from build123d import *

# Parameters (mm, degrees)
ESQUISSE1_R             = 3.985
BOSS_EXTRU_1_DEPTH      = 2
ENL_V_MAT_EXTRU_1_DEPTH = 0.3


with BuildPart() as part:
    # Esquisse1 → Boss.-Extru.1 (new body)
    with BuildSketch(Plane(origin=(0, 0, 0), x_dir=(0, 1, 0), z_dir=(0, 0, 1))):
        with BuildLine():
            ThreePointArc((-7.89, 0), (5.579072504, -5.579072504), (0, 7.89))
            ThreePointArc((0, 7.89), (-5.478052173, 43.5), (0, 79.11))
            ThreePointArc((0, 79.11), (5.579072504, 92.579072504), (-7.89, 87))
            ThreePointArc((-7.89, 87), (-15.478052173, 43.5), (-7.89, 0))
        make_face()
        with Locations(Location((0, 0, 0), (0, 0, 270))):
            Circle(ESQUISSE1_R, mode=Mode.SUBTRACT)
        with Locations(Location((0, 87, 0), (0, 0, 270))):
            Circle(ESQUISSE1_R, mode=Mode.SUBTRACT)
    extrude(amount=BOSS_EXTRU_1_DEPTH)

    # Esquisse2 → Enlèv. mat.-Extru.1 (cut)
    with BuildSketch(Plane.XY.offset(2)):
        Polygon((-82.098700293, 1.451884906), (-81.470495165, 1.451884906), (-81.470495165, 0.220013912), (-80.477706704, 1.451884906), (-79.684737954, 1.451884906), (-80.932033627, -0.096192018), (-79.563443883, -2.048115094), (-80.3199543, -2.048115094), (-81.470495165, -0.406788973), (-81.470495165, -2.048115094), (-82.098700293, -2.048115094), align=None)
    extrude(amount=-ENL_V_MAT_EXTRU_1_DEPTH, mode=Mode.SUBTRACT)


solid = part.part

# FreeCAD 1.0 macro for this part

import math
import FreeCAD as App
import Part
import Sketcher
Q = App.Units.Quantity

doc = App.newDocument("Part")
params = doc.addObject("Spreadsheet::Sheet", "Params")
for row, (alias, value) in enumerate([
    ("sketch1_diameter", "7.97 mm"),
    ("sketch1_radius", "7.89 mm"),
    ("pad1_length", "2 mm"),
    ("sketch2_height", "3.5 mm"),
    ("pocket1_length", "0.3 mm"),
], start=1):
    params.set(f"A{row}", alias)
    params.set(f"B{row}", "=" + value)
    params.setAlias(f"B{row}", alias)

body = doc.addObject("PartDesign::Body", "Body")

sketch1 = doc.addObject("Sketcher::SketchObject", "Sketch")
body.addObject(sketch1)
sketch1.AttachmentSupport = (doc.XY_Plane, [""])
sketch1.MapMode = "FlatFace"
sketch1.addGeometry([
    Part.ArcOfCircle(Part.Circle(App.Vector(0, 0, 0), App.Vector(0, 0, 1), 7.9), math.radians(-90), math.radians(180)),
    Part.ArcOfCircle(Part.Circle(App.Vector(-43.5, 113, 0), App.Vector(0, 0, 1), 118.5), math.radians(-107), math.radians(-73)),
    Part.ArcOfCircle(Part.Circle(App.Vector(-87, 0, 0), App.Vector(0, 0, 1), 7.9), math.radians(0), math.radians(270)),
    Part.ArcOfCircle(Part.Circle(App.Vector(-43.5, 113, 0), App.Vector(0, 0, 1), 128.5), math.radians(-110), math.radians(-70)),
    Part.Circle(App.Vector(0, 0, 0), App.Vector(0, 0, 1), 4),
    Part.Circle(App.Vector(-87, 0, 0), App.Vector(0, 0, 1), 4),
], False)
sketch1.addConstraint([
    Sketcher.Constraint("Coincident", 0, 2, 1, 2),
    Sketcher.Constraint("Coincident", 1, 1, 2, 1),
    Sketcher.Constraint("Coincident", 2, 2, 3, 1),
    Sketcher.Constraint("Coincident", 3, 2, 0, 1),
    Sketcher.Constraint("Coincident", 0, 3, -1, 1),
    Sketcher.Constraint("Coincident", 4, 3, -1, 1),
    Sketcher.Constraint("Coincident", 3, 3, 1, 3),
    Sketcher.Constraint("Coincident", 5, 3, 2, 3),
    Sketcher.Constraint("Equal", 0, 2),
    Sketcher.Constraint("Equal", 4, 5),
    Sketcher.Constraint("PointOnObject", 2, 3, -1),
    Sketcher.Constraint("PointOnObject", 0, 2, -1),
    Sketcher.Constraint("PointOnObject", 1, 1, -1),
    Sketcher.Constraint("PointOnObject", 3, 2, -2),
    Sketcher.Constraint("Diameter", 4, Q("7.97 mm")),
    Sketcher.Constraint("Radius", 0, Q("7.89 mm")),
    Sketcher.Constraint("DistanceX", 2, 3, -1, 1, Q("87 mm")),
    Sketcher.Constraint("Radius", 1, Q("118.480175 mm")),
])
sketch1.setExpression("Constraints[14]", "Params.sketch1_diameter")
sketch1.setExpression("Constraints[15]", "Params.sketch1_radius")
pad1 = doc.addObject("PartDesign::Pad", "Pad")
body.addObject(pad1)
pad1.Profile = sketch1
pad1.setExpression("Length", "Params.pad1_length")

sketch2 = doc.addObject("Sketcher::SketchObject", "Sketch001")
body.addObject(sketch2)
sketch2.AttachmentSupport = (doc.XY_Plane, [""])
sketch2.MapMode = "FlatFace"
sketch2.AttachmentOffset = App.Placement(App.Vector(0, 0, 2), App.Rotation())
sketch2.addGeometry([
    Part.LineSegment(App.Vector(-81.5, 1.5, 0), App.Vector(-82.1, 1.5, 0)),
    Part.LineSegment(App.Vector(-82.1, 1.5, 0), App.Vector(-82.1, -2, 0)),
    Part.LineSegment(App.Vector(-82.1, -2, 0), App.Vector(-81.5, -2, 0)),
    Part.LineSegment(App.Vector(-81.5, -2, 0), App.Vector(-81.5, -0.4, 0)),
    Part.LineSegment(App.Vector(-81.5, -0.4, 0), App.Vector(-80.3, -2, 0)),
    Part.LineSegment(App.Vector(-80.3, -2, 0), App.Vector(-79.6, -2, 0)),
    Part.LineSegment(App.Vector(-79.6, -2, 0), App.Vector(-80.9, -0.1, 0)),
    Part.LineSegment(App.Vector(-80.9, -0.1, 0), App.Vector(-79.7, 1.5, 0)),
    Part.LineSegment(App.Vector(-79.7, 1.5, 0), App.Vector(-80.5, 1.5, 0)),
    Part.LineSegment(App.Vector(-80.5, 1.5, 0), App.Vector(-81.5, 0.2, 0)),
    Part.LineSegment(App.Vector(-81.5, 0.2, 0), App.Vector(-81.5, 1.5, 0)),
], False)
sketch2.addConstraint([
    Sketcher.Constraint("Coincident", 0, 2, 1, 1),
    Sketcher.Constraint("Coincident", 1, 2, 2, 1),
    Sketcher.Constraint("Coincident", 2, 2, 3, 1),
    Sketcher.Constraint("Coincident", 3, 2, 4, 1),
    Sketcher.Constraint("Coincident", 4, 2, 5, 1),
    Sketcher.Constraint("Coincident", 5, 2, 6, 1),
    Sketcher.Constraint("Coincident", 6, 2, 7, 1),
    Sketcher.Constraint("Coincident", 7, 2, 8, 1),
    Sketcher.Constraint("Coincident", 8, 2, 9, 1),
    Sketcher.Constraint("Coincident", 9, 2, 10, 1),
    Sketcher.Constraint("Coincident", 10, 2, 0, 1),
    Sketcher.Constraint("Horizontal", 0),
    Sketcher.Constraint("Vertical", 1),
    Sketcher.Constraint("Horizontal", 2),
    Sketcher.Constraint("Vertical", 3),
    Sketcher.Constraint("Horizontal", 5),
    Sketcher.Constraint("Horizontal", 8),
    Sketcher.Constraint("Vertical", 10),
    Sketcher.Constraint("Horizontal", 2, 2, 4, 2),
    Sketcher.Constraint("Horizontal", 0, 2, 7, 2),
    Sketcher.Constraint("Vertical", 3, 2, 9, 2),
    Sketcher.Constraint("DistanceY", 1, 2, 1, 1, Q("3.5 mm")),
    Sketcher.Constraint("DistanceX", 5, 1, 5, 2, Q("0.75651 mm")),
    Sketcher.Constraint("DistanceX", 8, 2, 8, 1, Q("0.792969 mm")),
    Sketcher.Constraint("DistanceY", 10, 1, 10, 2, Q("1.231871 mm")),
    Sketcher.Constraint("DistanceX", 0, 2, -1, 1, Q("82.0987 mm")),
    Sketcher.Constraint("Distance", 4, Q("2.004419 mm")),
    Sketcher.Constraint("Distance", 9, Q("1.58213 mm")),
    Sketcher.Constraint("DistanceX", 0, 2, 0, 1, Q("0.628205 mm")),
    Sketcher.Constraint("DistanceY", 3, 1, 3, 2, Q("1.641326 mm")),
    Sketcher.Constraint("DistanceY", 3, 2, -1, 1, Q("0.406789 mm")),
    Sketcher.Constraint("DistanceX", 3, 2, 6, 2, Q("0.538462 mm")),
    Sketcher.Constraint("Distance", 6, Q("2.383913 mm")),
])
sketch2.setExpression("Constraints[21]", "Params.sketch2_height")
pocket1 = doc.addObject("PartDesign::Pocket", "Pocket")
body.addObject(pocket1)
pocket1.Profile = sketch2
pocket1.setExpression("Length", "Params.pocket1_length")

doc.recompute()
